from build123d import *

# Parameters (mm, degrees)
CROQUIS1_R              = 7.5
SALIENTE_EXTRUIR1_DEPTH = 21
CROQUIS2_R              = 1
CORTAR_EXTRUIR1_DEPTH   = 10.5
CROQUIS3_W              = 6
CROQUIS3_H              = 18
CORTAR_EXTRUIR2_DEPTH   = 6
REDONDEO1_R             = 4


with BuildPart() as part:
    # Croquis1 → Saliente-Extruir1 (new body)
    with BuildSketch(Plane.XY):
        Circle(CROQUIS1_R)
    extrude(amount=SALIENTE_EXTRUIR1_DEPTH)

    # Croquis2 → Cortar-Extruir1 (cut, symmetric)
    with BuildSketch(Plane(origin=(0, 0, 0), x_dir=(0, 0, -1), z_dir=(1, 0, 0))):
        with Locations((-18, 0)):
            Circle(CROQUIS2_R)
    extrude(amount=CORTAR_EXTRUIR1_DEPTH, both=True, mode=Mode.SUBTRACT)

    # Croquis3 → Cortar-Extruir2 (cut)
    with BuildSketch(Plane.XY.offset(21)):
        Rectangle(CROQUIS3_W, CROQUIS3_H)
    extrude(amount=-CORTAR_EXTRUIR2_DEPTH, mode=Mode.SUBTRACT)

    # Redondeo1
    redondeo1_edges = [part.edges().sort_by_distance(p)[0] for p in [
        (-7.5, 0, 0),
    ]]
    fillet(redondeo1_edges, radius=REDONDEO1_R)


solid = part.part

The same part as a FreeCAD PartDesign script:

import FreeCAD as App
import Part
import Sketcher
Q = App.Units.Quantity


def edges_at(feature, points):
    """Names of the edges that pass closest to the given points."""
    edges = feature.Shape.Edges
    near = lambda p: min(range(len(edges)), key=lambda i: edges[i].distToShape(Part.Vertex(*p))[0])
    return sorted({f"Edge{near(p) + 1}" for p in points})

doc = App.newDocument("Part")
params = doc.addObject("Spreadsheet::Sheet", "Params")
for row, (alias, value) in enumerate([
    ("sketch1_diameter", "15 mm"),
    ("pad1_length", "21 mm"),
    ("sketch2_diameter", "2 mm"),
    ("pocket1_length", "21 mm"),
    ("sketch3_width", "6 mm"),
    ("sketch3_height", "18 mm"),
    ("pocket2_length", "6 mm"),
    ("fillet_radius", "4 mm"),
], start=1):
    params.set(f"A{row}", alias)
    params.set(f"B{row}", "=" + value)
    params.setAlias(f"B{row}", alias)

body = doc.addObject("PartDesign::Body", "Body")

sketch1 = body.newObject("Sketcher::SketchObject", "Sketch")
sketch1.AttachmentSupport = (doc.getObject("XY_Plane"), [""])
sketch1.MapMode = "FlatFace"
sketch1.addGeometry(Part.Circle(App.Vector(0, 0, 0), App.Vector(0, 0, 1), 8), False)
sketch1.addConstraint(Sketcher.Constraint("Coincident", 0, 3, -1, 1))
sketch1.addConstraint(Sketcher.Constraint("Diameter", 0, Q("15 mm")))
sketch1.setExpression("Constraints[1]", "Params.sketch1_diameter")
pad1 = body.newObject("PartDesign::Pad", "Pad")
pad1.Profile = sketch1
pad1.setExpression("Length", "Params.pad1_length")

sketch2 = body.newObject("Sketcher::SketchObject", "Sketch001")
sketch2.AttachmentSupport = (doc.getObject("YZ_Plane"), [""])
sketch2.MapMode = "FlatFace"
sketch2.addGeometry(Part.Circle(App.Vector(0, 18, 0), App.Vector(0, 0, 1), 1), False)
sketch2.addConstraint(Sketcher.Constraint("PointOnObject", 0, 3, -2))
sketch2.addConstraint(Sketcher.Constraint("Diameter", 0, Q("2 mm")))
sketch2.addConstraint(Sketcher.Constraint("DistanceY", -1, 1, 0, 3, Q("18 mm")))
sketch2.setExpression("Constraints[1]", "Params.sketch2_diameter")
pocket1 = body.newObject("PartDesign::Pocket", "Pocket")
pocket1.Profile = sketch2
pocket1.setExpression("Length", "Params.pocket1_length")
pocket1.Midplane = True

sketch3 = body.newObject("Sketcher::SketchObject", "Sketch002")
sketch3.AttachmentSupport = (doc.getObject("XY_Plane"), [""])
sketch3.MapMode = "FlatFace"
sketch3.AttachmentOffset = App.Placement(App.Vector(0, 0, 21), App.Rotation())
sketch3.addGeometry(Part.LineSegment(App.Vector(-3, 9, 0), App.Vector(-3, -9, 0)), False)
sketch3.addGeometry(Part.LineSegment(App.Vector(-3, -9, 0), App.Vector(3, -9, 0)), False)
sketch3.addGeometry(Part.LineSegment(App.Vector(3, -9, 0), App.Vector(3, 9, 0)), False)
sketch3.addGeometry(Part.LineSegment(App.Vector(3, 9, 0), App.Vector(-3, 9, 0)), False)
sketch3.addConstraint(Sketcher.Constraint("Coincident", 0, 2, 1, 1))
sketch3.addConstraint(Sketcher.Constraint("Coincident", 1, 2, 2, 1))
sketch3.addConstraint(Sketcher.Constraint("Coincident", 2, 2, 3, 1))
sketch3.addConstraint(Sketcher.Constraint("Coincident", 3, 2, 0, 1))
sketch3.addConstraint(Sketcher.Constraint("Vertical", 0))
sketch3.addConstraint(Sketcher.Constraint("Horizontal", 1))
sketch3.addConstraint(Sketcher.Constraint("Vertical", 2))
sketch3.addConstraint(Sketcher.Constraint("Horizontal", 3))
sketch3.addConstraint(Sketcher.Constraint("Symmetric", 0, 2, 2, 2, -1, 1))
sketch3.addConstraint(Sketcher.Constraint("DistanceX", 1, 1, 1, 2, Q("6 mm")))
sketch3.addConstraint(Sketcher.Constraint("DistanceY", 0, 2, 0, 1, Q("18 mm")))
sketch3.setExpression("Constraints[9]", "Params.sketch3_width")
sketch3.setExpression("Constraints[10]", "Params.sketch3_height")
pocket2 = body.newObject("PartDesign::Pocket", "Pocket001")
pocket2.Profile = sketch3
pocket2.setExpression("Length", "Params.pocket2_length")
doc.recompute()

fillet = body.newObject("PartDesign::Fillet", "Fillet")
fillet.Base = (pocket2, edges_at(pocket2, [(-7.5, 0, 0)]))
fillet.setExpression("Radius", "Params.fillet_radius")

doc.recompute()
